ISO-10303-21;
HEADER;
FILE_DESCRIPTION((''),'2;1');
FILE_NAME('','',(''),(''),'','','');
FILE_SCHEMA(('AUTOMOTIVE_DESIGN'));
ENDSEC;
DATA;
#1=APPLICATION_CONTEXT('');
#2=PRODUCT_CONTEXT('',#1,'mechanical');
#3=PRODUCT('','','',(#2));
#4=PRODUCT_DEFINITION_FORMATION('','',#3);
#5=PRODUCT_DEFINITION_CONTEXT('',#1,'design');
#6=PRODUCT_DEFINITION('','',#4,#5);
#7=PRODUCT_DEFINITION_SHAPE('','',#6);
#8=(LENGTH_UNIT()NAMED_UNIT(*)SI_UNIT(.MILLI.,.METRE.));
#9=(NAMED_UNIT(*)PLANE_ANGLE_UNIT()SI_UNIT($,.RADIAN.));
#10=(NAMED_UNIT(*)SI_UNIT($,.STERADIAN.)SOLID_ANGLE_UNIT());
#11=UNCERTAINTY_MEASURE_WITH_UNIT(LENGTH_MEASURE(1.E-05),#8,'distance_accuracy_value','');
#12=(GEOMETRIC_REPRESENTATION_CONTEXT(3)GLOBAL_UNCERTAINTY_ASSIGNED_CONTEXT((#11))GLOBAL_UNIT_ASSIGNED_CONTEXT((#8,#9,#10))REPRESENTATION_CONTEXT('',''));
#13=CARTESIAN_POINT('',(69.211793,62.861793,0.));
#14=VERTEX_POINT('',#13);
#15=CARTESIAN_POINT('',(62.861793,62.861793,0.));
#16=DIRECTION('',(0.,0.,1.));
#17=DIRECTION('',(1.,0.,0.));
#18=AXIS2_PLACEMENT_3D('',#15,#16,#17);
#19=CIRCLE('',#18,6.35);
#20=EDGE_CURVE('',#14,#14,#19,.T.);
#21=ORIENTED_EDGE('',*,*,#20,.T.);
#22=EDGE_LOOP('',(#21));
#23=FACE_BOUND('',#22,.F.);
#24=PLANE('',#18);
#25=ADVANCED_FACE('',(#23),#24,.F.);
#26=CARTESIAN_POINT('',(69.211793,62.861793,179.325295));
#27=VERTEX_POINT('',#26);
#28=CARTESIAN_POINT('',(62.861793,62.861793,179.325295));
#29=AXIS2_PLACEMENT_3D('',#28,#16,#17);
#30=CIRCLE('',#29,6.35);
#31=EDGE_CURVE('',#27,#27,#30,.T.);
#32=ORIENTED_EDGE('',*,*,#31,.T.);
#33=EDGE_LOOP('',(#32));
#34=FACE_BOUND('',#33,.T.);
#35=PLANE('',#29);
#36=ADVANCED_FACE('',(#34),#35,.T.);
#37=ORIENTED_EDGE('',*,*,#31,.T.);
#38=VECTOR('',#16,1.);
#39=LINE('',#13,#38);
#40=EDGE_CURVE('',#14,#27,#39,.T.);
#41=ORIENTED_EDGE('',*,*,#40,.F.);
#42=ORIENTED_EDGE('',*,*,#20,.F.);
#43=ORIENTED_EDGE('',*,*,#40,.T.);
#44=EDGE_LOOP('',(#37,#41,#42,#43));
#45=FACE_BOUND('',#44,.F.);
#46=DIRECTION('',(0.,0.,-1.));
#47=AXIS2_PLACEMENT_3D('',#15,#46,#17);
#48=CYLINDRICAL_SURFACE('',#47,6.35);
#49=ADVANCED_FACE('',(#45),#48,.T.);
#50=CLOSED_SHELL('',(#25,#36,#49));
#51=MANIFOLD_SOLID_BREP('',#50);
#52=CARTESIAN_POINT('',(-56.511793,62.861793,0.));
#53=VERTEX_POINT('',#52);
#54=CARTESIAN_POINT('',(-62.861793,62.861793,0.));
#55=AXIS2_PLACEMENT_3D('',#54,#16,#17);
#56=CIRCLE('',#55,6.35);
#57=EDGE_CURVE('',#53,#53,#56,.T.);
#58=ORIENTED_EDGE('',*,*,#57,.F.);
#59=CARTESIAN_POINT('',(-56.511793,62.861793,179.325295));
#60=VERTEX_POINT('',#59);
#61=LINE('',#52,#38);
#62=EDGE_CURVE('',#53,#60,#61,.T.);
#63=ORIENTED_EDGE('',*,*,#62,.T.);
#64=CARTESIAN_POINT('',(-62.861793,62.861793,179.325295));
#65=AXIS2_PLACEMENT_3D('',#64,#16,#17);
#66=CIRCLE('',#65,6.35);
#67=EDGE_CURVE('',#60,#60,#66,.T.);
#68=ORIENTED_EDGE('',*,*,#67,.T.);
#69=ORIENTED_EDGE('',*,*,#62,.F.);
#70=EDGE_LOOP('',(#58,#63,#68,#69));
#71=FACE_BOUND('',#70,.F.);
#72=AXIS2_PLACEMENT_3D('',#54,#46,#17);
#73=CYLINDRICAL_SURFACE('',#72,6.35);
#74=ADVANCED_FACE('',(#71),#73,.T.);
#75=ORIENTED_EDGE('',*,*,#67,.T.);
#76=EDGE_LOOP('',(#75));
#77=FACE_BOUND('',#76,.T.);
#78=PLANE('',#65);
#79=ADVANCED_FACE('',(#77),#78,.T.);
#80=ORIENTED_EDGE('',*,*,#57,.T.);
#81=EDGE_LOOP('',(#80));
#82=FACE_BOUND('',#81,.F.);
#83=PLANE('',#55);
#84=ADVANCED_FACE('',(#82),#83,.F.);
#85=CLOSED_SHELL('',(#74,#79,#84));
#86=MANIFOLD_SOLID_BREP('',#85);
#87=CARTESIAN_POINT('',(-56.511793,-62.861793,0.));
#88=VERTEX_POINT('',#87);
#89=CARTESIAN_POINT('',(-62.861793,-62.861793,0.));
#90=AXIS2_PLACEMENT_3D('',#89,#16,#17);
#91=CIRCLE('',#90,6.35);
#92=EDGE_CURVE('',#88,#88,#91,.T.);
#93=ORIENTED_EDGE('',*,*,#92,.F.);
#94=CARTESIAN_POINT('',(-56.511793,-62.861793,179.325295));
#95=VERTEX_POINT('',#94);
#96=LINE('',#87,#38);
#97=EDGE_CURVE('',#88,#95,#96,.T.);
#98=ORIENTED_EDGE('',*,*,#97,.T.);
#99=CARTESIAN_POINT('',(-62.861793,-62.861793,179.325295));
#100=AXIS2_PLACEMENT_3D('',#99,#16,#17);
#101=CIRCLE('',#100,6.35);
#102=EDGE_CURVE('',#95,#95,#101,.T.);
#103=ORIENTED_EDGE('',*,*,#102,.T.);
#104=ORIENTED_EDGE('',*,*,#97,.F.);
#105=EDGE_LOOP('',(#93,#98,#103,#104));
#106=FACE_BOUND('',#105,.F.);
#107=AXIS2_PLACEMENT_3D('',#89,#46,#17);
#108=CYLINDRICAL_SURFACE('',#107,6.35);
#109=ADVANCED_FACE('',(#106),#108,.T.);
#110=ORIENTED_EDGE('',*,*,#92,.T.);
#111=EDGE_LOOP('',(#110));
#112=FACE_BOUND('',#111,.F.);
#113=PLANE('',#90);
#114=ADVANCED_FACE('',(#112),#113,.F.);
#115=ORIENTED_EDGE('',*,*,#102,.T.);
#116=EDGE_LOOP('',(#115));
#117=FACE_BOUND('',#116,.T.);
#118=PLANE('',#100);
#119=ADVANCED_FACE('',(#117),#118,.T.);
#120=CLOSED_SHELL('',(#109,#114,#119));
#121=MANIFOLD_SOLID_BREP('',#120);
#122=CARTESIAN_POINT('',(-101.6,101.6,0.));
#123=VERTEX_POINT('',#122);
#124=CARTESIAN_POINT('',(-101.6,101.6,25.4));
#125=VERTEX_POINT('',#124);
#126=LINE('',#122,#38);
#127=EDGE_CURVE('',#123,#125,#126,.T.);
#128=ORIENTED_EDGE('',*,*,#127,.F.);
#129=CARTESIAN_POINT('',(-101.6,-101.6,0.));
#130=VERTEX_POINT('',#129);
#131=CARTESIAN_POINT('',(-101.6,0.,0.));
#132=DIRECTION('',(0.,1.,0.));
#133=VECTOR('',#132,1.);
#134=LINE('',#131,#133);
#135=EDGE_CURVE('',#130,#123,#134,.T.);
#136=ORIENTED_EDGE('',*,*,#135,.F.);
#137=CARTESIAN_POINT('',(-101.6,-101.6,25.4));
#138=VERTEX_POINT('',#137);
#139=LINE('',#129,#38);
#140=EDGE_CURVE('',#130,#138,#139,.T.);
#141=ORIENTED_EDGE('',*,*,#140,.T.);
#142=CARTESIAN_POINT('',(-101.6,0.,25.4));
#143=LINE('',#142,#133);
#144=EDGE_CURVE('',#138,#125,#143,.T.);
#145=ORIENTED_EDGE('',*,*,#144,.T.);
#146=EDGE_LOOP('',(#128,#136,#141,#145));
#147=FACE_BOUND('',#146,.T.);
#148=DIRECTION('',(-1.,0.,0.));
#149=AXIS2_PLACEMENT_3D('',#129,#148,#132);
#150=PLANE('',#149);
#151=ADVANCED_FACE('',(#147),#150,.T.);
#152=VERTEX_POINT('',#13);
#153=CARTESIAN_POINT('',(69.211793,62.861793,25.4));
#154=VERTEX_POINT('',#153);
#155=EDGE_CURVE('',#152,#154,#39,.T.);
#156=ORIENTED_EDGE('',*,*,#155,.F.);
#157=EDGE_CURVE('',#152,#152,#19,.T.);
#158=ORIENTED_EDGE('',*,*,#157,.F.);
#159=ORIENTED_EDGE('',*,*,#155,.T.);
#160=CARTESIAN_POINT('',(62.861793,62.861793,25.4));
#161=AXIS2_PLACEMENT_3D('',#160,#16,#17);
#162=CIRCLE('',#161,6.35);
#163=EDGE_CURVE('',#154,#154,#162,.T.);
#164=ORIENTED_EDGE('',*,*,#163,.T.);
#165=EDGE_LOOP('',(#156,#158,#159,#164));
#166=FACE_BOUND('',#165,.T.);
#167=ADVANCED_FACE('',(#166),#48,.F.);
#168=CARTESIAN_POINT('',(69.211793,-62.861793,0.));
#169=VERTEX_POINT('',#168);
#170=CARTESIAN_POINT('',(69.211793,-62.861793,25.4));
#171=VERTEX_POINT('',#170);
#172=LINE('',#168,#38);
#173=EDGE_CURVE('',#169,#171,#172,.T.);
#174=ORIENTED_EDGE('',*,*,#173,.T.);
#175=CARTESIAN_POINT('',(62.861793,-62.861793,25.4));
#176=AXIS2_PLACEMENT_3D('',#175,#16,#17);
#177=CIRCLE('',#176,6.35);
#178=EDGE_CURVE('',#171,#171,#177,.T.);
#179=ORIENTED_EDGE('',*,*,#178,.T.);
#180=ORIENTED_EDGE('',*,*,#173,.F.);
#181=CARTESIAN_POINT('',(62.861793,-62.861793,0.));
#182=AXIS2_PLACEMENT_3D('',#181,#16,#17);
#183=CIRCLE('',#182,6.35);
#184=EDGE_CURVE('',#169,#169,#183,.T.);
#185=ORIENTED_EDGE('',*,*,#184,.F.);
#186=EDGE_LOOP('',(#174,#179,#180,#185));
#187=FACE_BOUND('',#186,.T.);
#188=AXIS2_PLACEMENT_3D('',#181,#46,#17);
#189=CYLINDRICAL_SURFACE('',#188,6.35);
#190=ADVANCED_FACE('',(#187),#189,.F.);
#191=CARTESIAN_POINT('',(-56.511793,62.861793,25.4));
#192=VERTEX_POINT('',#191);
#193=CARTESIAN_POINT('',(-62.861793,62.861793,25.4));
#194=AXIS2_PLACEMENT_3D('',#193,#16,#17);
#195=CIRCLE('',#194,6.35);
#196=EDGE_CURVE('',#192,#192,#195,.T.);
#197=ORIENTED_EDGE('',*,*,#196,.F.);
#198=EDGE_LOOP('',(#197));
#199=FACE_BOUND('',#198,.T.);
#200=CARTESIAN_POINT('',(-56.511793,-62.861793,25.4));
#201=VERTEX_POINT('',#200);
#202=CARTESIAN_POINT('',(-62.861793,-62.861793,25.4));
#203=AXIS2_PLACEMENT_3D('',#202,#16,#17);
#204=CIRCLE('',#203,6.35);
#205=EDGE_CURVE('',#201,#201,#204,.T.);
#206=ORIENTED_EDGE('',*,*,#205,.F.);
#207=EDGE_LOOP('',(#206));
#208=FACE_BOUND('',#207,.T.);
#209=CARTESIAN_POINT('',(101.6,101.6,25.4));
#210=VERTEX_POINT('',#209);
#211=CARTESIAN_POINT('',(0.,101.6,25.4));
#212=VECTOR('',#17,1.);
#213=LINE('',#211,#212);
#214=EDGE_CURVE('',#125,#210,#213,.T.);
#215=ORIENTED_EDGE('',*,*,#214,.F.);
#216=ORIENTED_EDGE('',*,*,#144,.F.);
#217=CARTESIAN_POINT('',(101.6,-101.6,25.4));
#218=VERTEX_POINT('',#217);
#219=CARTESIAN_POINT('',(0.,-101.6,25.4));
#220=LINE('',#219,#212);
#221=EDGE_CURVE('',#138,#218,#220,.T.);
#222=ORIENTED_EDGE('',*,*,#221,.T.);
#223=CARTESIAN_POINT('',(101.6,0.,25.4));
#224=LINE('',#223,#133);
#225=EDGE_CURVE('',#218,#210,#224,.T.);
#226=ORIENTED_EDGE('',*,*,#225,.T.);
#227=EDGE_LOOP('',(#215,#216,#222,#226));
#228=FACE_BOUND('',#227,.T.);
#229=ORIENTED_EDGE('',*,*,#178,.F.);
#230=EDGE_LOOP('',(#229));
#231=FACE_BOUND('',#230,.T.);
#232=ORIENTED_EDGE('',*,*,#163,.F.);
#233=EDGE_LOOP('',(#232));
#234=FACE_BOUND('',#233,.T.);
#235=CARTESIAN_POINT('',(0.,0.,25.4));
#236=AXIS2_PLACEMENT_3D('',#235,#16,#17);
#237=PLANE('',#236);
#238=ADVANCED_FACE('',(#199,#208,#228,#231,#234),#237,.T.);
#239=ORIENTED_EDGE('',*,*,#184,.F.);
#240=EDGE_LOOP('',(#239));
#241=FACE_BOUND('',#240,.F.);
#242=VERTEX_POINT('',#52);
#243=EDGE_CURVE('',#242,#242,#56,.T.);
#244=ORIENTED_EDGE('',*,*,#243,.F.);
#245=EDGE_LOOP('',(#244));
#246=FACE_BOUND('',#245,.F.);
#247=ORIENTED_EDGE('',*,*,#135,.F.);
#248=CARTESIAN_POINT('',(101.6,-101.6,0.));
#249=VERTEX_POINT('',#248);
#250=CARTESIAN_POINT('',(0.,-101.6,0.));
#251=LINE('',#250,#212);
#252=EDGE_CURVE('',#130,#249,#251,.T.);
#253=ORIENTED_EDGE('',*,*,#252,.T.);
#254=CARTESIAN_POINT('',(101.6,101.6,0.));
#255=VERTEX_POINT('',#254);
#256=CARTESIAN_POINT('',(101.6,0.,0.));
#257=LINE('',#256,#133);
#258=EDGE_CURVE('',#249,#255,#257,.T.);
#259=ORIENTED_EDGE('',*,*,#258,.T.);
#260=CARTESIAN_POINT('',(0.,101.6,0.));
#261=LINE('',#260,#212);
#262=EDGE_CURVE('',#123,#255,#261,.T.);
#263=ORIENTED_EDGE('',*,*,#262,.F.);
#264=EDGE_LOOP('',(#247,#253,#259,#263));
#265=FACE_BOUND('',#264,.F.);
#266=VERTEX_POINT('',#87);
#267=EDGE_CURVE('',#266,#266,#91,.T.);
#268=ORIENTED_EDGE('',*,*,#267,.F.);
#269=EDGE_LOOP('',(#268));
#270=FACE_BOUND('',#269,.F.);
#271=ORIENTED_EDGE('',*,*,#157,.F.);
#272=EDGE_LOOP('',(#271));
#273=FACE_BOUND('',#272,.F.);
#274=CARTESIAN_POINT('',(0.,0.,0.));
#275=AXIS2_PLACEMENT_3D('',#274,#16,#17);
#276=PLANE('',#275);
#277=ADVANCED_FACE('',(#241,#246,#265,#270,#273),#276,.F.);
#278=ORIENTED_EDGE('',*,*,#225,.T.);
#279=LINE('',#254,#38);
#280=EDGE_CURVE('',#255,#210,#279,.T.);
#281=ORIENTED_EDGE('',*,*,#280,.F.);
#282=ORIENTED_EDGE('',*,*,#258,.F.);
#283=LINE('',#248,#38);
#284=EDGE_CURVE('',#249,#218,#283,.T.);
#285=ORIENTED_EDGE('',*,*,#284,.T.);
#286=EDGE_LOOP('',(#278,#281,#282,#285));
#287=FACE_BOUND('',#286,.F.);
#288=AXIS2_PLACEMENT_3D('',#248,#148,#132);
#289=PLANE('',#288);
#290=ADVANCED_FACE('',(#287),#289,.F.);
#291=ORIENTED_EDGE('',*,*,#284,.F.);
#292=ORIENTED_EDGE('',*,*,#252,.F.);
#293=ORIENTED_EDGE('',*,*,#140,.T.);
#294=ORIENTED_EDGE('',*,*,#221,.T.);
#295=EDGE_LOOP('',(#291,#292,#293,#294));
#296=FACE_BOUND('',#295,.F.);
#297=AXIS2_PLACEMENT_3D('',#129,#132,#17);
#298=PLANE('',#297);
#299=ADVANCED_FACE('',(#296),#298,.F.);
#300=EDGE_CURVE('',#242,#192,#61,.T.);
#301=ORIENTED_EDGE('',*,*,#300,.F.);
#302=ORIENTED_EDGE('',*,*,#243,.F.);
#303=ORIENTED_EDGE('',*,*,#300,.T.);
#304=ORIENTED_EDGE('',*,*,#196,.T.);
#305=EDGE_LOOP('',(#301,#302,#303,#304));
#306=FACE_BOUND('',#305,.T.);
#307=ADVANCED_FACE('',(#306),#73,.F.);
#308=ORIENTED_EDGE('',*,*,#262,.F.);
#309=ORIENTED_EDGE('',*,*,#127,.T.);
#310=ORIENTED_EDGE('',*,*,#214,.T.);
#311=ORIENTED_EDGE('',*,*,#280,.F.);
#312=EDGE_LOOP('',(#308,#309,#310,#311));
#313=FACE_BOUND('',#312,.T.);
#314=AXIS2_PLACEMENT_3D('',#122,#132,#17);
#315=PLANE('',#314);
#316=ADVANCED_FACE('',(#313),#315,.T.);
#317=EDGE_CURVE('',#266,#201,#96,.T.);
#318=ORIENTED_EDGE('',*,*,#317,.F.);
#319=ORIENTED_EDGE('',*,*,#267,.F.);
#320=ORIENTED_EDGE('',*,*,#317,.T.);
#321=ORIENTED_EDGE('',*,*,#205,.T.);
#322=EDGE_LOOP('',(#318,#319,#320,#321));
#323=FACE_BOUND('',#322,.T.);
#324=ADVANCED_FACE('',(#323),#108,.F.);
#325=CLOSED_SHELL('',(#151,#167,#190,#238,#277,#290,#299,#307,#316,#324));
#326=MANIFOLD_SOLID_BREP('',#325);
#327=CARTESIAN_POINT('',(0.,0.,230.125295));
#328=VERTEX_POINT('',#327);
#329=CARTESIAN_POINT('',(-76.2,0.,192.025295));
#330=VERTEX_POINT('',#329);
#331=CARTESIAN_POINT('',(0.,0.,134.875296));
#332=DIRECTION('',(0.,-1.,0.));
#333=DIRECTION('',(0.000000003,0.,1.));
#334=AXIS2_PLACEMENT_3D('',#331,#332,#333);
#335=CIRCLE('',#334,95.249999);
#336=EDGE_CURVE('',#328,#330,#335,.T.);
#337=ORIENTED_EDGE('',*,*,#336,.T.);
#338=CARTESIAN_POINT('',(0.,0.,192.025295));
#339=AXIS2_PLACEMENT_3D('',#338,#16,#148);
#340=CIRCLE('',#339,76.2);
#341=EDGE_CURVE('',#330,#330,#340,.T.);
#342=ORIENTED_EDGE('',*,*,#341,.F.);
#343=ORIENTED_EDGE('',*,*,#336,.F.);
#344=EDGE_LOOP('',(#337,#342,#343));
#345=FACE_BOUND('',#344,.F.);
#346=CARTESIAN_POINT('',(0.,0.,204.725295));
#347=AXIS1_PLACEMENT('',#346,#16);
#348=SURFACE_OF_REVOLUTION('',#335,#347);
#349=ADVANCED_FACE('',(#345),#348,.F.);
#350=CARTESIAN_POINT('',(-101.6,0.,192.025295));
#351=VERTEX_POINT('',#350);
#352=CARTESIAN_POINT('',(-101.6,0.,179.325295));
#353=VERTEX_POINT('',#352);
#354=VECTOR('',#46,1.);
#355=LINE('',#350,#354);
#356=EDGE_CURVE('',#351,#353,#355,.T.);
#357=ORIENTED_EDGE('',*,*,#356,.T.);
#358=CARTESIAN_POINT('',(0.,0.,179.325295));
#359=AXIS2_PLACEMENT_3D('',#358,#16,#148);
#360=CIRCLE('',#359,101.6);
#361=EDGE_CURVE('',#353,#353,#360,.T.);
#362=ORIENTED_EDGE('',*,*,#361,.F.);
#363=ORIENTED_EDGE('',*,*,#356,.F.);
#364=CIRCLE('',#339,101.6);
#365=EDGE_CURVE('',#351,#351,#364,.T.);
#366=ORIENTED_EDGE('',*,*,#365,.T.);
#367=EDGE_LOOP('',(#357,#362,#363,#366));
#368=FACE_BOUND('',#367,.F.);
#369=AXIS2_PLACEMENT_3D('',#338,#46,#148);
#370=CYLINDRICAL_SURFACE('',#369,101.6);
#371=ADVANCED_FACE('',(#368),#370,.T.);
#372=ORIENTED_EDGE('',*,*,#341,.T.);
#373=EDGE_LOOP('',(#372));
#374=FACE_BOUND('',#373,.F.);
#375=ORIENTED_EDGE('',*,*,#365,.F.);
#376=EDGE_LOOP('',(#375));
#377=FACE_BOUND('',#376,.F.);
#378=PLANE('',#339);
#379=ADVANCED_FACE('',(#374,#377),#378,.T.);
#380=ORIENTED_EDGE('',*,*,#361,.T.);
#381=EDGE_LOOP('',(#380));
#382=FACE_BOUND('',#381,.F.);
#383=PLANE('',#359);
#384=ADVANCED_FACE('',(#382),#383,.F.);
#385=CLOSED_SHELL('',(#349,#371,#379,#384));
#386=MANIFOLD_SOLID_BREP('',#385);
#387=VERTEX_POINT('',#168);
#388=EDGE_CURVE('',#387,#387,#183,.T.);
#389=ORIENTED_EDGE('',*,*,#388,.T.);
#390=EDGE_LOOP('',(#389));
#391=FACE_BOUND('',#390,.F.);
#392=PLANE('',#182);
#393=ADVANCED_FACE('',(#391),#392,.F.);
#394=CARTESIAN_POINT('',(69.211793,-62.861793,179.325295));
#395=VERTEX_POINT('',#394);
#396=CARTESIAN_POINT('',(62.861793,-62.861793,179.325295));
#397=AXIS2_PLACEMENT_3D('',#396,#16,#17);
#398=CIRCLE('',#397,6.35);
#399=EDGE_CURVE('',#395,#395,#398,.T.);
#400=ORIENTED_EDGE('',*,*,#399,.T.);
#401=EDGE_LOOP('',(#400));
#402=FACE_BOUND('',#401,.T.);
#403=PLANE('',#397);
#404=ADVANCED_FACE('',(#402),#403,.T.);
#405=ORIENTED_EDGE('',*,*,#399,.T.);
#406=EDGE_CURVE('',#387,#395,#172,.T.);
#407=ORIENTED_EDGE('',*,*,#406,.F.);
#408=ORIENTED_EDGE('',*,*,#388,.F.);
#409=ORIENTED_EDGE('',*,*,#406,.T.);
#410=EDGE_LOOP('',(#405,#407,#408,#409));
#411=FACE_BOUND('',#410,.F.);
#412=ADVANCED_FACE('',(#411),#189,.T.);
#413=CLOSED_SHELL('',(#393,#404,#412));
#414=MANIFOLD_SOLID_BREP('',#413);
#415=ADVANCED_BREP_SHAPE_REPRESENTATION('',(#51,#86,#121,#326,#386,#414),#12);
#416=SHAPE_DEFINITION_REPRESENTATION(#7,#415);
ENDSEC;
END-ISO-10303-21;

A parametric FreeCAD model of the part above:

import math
import FreeCAD as App
import Part
import Sketcher

V = App.Vector
Q = App.Units.Quantity

doc = App.newDocument("Part")
params = doc.addObject("Spreadsheet::Sheet", "Params")
for row, (alias, value) in enumerate([
    ("sketch1_diameter", "0.5 in"),
    ("sketch1_width", "8 in"),
    ("pad1_length", "1 in"),
    ("sketch2_width", "4 in"),
    ("sketch2_width2", "1 in"),
    ("sketch2_height", "2 in"),
    ("sketch2_radius", "3.75 in"),
    ("revolution_angle", "360 deg"),
    ("sketch3_diameter", "0.5 in"),
    ("pad2_length", "179.325295 mm"),
], start=1):
    params.set(f"A{row}", alias)
    params.set(f"B{row}", "=" + value)
    params.setAlias(f"B{row}", alias)

body = doc.addObject("PartDesign::Body", "Body")

# Sketch on XY plane
sketch1 = doc.addObject("Sketcher::SketchObject", "Sketch")
body.addObject(sketch1)
sketch1.AttachmentSupport = (doc.XY_Plane, [""])
sketch1.MapMode = "FlatFace"
sketch1.addGeometry(Part.LineSegment(V(-102, 102, 0), V(-102, -102, 0)), False)
sketch1.addGeometry(Part.LineSegment(V(-102, -102, 0), V(102, -102, 0)), False)
sketch1.addGeometry(Part.LineSegment(V(102, -102, 0), V(102, 102, 0)), False)
sketch1.addGeometry(Part.LineSegment(V(102, 102, 0), V(-102, 102, 0)), False)
sketch1.addGeometry(Part.Circle(V(-63, -63, 0), V(0, 0, 1), 6), False)
sketch1.addGeometry(Part.Circle(V(63, -63, 0), V(0, 0, 1), 6), False)
sketch1.addGeometry(Part.Circle(V(-63, 63, 0), V(0, 0, 1), 6), False)
sketch1.addGeometry(Part.Circle(V(63, 63, 0), V(0, 0, 1), 6), False)
sketch1.addConstraint(Sketcher.Constraint("Coincident", 0, 2, 1, 1))
sketch1.addConstraint(Sketcher.Constraint("Coincident", 1, 2, 2, 1))
sketch1.addConstraint(Sketcher.Constraint("Coincident", 2, 2, 3, 1))
sketch1.addConstraint(Sketcher.Constraint("Coincident", 3, 2, 0, 1))
sketch1.addConstraint(Sketcher.Constraint("Vertical", 0))
sketch1.addConstraint(Sketcher.Constraint("Horizontal", 1))
sketch1.addConstraint(Sketcher.Constraint("Vertical", 2))
sketch1.addConstraint(Sketcher.Constraint("Horizontal", 3))
sketch1.addConstraint(Sketcher.Constraint("Equal", 4, 5))
sketch1.addConstraint(Sketcher.Constraint("Equal", 5, 6))
sketch1.addConstraint(Sketcher.Constraint("Equal", 6, 7))
sketch1.addConstraint(Sketcher.Constraint("Symmetric", 5, 3, 6, 3, -1, 1))
sketch1.addConstraint(Sketcher.Constraint("Symmetric", 4, 3, 7, 3, -1, 1))
sketch1.addConstraint(Sketcher.Constraint("Symmetric", 0, 2, 2, 2, -1, 1))
sketch1.addConstraint(Sketcher.Constraint("Symmetric", 4, 3, 5, 3, -2))
sketch1.addConstraint(Sketcher.Constraint("Equal", 3, 0))
sketch1.addConstraint(Sketcher.Constraint("Diameter", 4, Q("0.5 in")))
sketch1.addConstraint(Sketcher.Constraint("DistanceX", 1, 1, 1, 2, Q("8 in")))
sketch1.addConstraint(Sketcher.Constraint("DistanceX", 4, 3, -1, 1, Q("62.861793 mm")))
sketch1.addConstraint(Sketcher.Constraint("DistanceY", 4, 3, -1, 1, Q("62.861793 mm")))
sketch1.setExpression("Constraints[16]", "Params.sketch1_diameter")
sketch1.setExpression("Constraints[17]", "Params.sketch1_width")
pad1 = doc.addObject("PartDesign::Pad", "Pad")
body.addObject(pad1)
pad1.Profile = sketch1
pad1.setExpression("Length", "Params.pad1_length")
body2 = doc.addObject("PartDesign::Body", "Body001")

# Sketch on XZ plane
sketch2 = doc.addObject("Sketcher::SketchObject", "Sketch001")
body2.addObject(sketch2)
sketch2.AttachmentSupport = (doc.getObject("XZ_Plane001"), [""])
sketch2.MapMode = "FlatFace"
sketch2.addGeometry(Part.LineSegment(V(-102, 179, 0), V(0, 179, 0)), False)
sketch2.addGeometry(Part.LineSegment(V(0, 179, 0), V(0, 230, 0)), False)
sketch2.addGeometry(Part.ArcOfCircle(Part.Circle(V(0, 135, 0), V(0, 0, 1), 95), math.radians(90), math.radians(143)), False)
sketch2.addGeometry(Part.LineSegment(V(-76, 192, 0), V(-102, 192, 0)), False)
sketch2.addGeometry(Part.LineSegment(V(-102, 192, 0), V(-102, 179, 0)), False)
sketch2.addConstraint(Sketcher.Constraint("Coincident", 0, 2, 1, 1))
sketch2.addConstraint(Sketcher.Constraint("Coincident", 1, 2, 2, 1))
sketch2.addConstraint(Sketcher.Constraint("Coincident", 2, 2, 3, 1))
sketch2.addConstraint(Sketcher.Constraint("Coincident", 3, 2, 4, 1))
sketch2.addConstraint(Sketcher.Constraint("Coincident", 4, 2, 0, 1))
sketch2.addConstraint(Sketcher.Constraint("Horizontal", 0))
sketch2.addConstraint(Sketcher.Constraint("Vertical", 1))
sketch2.addConstraint(Sketcher.Constraint("Horizontal", 3))
sketch2.addConstraint(Sketcher.Constraint("Vertical", 4))
sketch2.addConstraint(Sketcher.Constraint("PointOnObject", 2, 3, -2))
sketch2.addConstraint(Sketcher.Constraint("PointOnObject", 0, 2, -2))
sketch2.addConstraint(Sketcher.Constraint("DistanceX", 0, 1, 0, 2, Q("4 in")))
sketch2.addConstraint(Sketcher.Constraint("DistanceX", 3, 2, 3, 1, Q("1 in")))
sketch2.addConstraint(Sketcher.Constraint("DistanceY", 1, 1, 1, 2, Q("2 in")))
sketch2.addConstraint(Sketcher.Constraint("Radius", 2, Q("3.75 in")))
sketch2.addConstraint(Sketcher.Constraint("DistanceY", -1, 1, 2, 3, Q("134.875296 mm")))
sketch2.setExpression("Constraints[11]", "Params.sketch2_width")
sketch2.setExpression("Constraints[12]", "Params.sketch2_width2")
sketch2.setExpression("Constraints[13]", "Params.sketch2_height")
sketch2.setExpression("Constraints[14]", "Params.sketch2_radius")
revolution = doc.addObject("PartDesign::Revolution", "Revolution")
body2.addObject(revolution)
revolution.Profile = sketch2
revolution.ReferenceAxis = (sketch2, ["V_Axis"])
revolution.setExpression("Angle", "Params.revolution_angle")
body3 = doc.addObject("PartDesign::Body", "Body002")
body3.AllowCompound = True

# Sketch on XY plane
sketch3 = doc.addObject("Sketcher::SketchObject", "Sketch002")
body3.addObject(sketch3)
sketch3.AttachmentSupport = (doc.getObject("XY_Plane002"), [""])
sketch3.MapMode = "FlatFace"
sketch3.addGeometry(Part.Circle(V(63, -63, 0), V(0, 0, 1), 6), False)
sketch3.addGeometry(Part.Circle(V(63, 63, 0), V(0, 0, 1), 6), False)
sketch3.addGeometry(Part.Circle(V(-63, 63, 0), V(0, 0, 1), 6), False)
sketch3.addGeometry(Part.Circle(V(-63, -63, 0), V(0, 0, 1), 6), False)
sketch3.addConstraint(Sketcher.Constraint("Equal", 0, 1))
sketch3.addConstraint(Sketcher.Constraint("Equal", 1, 2))
sketch3.addConstraint(Sketcher.Constraint("Equal", 2, 3))
sketch3.addConstraint(Sketcher.Constraint("Symmetric", 0, 3, 2, 3, -1, 1))
sketch3.addConstraint(Sketcher.Constraint("Symmetric", 1, 3, 3, 3, -1, 1))
sketch3.addConstraint(Sketcher.Constraint("Symmetric", 1, 3, 2, 3, -2))
sketch3.addConstraint(Sketcher.Constraint("Diameter", 0, Q("0.5 in")))
sketch3.addConstraint(Sketcher.Constraint("DistanceX", -1, 1, 0, 3, Q("62.861793 mm")))
sketch3.addConstraint(Sketcher.Constraint("DistanceY", 0, 3, -1, 1, Q("62.861793 mm")))
sketch3.setExpression("Constraints[6]", "Params.sketch3_diameter")
pad2 = doc.addObject("PartDesign::Pad", "Pad001")
body3.addObject(pad2)
pad2.Profile = sketch3
pad2.setExpression("Length", "Params.pad2_length")

doc.recompute()
